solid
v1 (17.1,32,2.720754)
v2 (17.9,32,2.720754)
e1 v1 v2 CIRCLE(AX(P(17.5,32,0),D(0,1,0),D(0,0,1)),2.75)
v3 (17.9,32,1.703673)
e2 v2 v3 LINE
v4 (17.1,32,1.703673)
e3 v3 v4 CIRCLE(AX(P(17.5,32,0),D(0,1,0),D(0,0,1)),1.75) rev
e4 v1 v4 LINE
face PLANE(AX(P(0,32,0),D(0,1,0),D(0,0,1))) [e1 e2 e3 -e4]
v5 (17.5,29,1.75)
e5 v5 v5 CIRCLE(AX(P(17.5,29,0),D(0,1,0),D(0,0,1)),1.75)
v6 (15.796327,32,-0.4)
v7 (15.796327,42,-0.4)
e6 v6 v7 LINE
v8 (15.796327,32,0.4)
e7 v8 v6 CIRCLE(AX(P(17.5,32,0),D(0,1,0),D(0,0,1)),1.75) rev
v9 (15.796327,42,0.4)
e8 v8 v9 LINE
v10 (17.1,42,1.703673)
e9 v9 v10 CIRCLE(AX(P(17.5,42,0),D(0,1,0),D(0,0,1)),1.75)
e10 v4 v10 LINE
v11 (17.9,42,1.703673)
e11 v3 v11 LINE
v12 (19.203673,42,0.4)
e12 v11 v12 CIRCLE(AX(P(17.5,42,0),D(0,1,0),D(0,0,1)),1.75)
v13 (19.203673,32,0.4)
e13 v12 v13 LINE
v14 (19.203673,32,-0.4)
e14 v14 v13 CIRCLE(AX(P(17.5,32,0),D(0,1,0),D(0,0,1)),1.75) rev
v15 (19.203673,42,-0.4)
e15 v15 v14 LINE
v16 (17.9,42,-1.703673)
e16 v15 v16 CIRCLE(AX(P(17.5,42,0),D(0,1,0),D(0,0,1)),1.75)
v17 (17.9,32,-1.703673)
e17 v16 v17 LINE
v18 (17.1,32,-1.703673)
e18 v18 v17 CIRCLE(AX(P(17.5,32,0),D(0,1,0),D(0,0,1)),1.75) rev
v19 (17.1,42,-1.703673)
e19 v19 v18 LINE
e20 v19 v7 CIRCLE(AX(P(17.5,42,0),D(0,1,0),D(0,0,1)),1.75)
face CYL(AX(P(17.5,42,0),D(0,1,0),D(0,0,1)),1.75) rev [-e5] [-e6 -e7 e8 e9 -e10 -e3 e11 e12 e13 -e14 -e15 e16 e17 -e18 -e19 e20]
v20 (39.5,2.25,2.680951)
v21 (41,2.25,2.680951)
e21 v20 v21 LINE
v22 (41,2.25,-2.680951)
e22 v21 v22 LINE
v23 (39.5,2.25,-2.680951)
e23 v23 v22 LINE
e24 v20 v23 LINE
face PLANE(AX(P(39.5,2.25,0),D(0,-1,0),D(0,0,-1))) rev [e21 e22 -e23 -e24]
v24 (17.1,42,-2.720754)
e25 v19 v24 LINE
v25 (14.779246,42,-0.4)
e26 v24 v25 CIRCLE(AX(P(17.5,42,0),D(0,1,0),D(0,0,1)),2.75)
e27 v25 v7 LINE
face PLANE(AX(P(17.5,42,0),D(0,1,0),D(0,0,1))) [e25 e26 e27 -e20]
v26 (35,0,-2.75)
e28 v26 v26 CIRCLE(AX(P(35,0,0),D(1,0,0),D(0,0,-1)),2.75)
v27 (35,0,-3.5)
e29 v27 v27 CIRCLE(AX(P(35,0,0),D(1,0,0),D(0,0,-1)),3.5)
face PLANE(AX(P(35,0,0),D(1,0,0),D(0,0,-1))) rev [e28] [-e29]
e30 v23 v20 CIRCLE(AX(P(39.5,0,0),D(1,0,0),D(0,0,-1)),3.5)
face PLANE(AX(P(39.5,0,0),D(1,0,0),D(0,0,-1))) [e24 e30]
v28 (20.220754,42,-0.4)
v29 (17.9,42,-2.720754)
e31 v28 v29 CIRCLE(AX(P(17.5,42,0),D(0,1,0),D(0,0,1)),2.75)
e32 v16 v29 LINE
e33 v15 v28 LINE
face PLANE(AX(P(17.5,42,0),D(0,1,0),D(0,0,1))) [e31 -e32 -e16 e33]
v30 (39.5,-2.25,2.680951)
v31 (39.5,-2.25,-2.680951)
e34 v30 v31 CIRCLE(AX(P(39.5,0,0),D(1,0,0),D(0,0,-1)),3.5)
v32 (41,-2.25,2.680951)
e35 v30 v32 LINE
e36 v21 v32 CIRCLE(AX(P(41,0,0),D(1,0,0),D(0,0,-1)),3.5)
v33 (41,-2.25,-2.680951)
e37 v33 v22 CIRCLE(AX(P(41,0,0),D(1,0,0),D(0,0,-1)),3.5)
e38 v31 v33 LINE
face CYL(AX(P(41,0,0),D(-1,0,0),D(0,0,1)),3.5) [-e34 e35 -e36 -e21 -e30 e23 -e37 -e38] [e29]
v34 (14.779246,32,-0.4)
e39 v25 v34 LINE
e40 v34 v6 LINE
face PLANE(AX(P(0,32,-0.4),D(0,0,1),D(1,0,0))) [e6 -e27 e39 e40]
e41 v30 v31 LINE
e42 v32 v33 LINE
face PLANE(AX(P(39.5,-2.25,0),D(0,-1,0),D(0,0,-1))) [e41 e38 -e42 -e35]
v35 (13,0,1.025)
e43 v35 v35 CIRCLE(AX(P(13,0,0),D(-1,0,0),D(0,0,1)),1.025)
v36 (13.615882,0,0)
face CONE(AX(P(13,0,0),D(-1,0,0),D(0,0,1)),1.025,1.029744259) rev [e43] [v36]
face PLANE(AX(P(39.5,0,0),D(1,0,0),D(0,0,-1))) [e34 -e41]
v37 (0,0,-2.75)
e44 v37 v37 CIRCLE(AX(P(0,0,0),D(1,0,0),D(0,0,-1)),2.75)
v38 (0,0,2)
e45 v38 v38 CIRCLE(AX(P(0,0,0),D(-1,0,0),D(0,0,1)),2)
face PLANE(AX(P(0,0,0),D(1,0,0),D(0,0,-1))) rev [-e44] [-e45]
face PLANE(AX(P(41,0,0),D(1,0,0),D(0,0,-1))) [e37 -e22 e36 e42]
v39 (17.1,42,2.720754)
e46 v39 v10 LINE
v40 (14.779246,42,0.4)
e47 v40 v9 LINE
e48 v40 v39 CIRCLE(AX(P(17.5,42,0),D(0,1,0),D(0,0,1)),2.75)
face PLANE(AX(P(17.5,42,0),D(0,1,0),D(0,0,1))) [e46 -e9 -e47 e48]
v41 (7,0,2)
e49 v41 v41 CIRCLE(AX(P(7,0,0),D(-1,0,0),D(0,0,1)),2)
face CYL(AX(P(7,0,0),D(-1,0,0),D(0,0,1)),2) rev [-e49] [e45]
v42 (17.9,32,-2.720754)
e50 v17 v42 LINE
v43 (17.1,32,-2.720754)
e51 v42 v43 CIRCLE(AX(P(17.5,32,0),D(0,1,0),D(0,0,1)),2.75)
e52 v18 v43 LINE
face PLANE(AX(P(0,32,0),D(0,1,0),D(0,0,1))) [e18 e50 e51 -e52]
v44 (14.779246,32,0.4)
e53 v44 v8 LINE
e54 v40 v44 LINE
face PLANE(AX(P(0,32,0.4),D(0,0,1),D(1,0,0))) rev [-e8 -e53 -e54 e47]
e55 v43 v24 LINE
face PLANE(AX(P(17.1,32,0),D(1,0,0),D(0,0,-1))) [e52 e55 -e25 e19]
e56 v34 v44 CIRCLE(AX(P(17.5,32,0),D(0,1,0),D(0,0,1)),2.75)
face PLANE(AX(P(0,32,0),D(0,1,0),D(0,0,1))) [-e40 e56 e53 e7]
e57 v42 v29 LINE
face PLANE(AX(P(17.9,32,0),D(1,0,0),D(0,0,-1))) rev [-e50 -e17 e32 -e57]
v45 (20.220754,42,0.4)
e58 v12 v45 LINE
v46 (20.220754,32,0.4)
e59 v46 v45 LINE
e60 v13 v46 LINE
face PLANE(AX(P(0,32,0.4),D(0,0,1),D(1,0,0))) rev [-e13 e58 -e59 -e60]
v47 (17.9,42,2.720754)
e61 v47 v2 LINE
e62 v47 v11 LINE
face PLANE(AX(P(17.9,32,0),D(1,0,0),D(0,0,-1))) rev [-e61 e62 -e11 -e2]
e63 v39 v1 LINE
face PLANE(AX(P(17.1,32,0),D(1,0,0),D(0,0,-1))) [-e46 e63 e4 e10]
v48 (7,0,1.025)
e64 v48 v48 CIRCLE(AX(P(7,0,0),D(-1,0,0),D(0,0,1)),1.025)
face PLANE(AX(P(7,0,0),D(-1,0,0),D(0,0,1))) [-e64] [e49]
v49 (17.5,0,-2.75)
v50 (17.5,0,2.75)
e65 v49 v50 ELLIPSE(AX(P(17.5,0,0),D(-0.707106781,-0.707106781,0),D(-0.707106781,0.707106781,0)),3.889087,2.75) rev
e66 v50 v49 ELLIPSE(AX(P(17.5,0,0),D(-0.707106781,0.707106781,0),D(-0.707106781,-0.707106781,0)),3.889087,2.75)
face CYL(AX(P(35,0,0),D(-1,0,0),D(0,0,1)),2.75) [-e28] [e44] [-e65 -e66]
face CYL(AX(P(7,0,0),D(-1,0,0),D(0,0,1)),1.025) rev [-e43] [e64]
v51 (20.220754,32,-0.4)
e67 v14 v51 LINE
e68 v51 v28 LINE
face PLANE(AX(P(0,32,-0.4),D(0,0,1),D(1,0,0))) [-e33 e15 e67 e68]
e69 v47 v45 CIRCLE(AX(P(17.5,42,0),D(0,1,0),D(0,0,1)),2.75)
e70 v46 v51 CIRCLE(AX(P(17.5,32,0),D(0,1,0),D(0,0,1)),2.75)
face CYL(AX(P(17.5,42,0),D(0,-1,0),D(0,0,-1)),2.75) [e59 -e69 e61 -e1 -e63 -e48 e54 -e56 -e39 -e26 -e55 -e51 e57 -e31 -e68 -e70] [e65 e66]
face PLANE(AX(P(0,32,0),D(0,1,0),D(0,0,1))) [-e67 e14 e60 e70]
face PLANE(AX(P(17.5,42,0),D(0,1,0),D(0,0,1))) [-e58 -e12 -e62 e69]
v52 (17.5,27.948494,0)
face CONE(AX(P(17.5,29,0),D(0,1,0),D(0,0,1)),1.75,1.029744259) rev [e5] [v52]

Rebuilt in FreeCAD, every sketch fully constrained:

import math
import FreeCAD as App
import Part
import Sketcher
from FreeCAD import Vector
Q = App.Units.Quantity


def add_polygon(sketch, points):
    """Adds a closed chain of lines whose ends are joined by coincident constraints."""
    first, n = sketch.GeometryCount, len(points)
    for a, b in zip(points, points[1:] + points[:1]):
        sketch.addGeometry(Part.LineSegment(App.Vector(*a, 0), App.Vector(*b, 0)), False)
    for i in range(n):
        sketch.addConstraint(Sketcher.Constraint("Coincident", first + i, 2, first + (i + 1) % n, 1))

doc = App.newDocument("Part")
body = doc.addObject("PartDesign::Body", "Body")

# Sketch on YZ plane
sketch1 = body.newObject("Sketcher::SketchObject", "Sketch")
sketch1.AttachmentSupport = (doc.getObject("YZ_Plane"), [""])
sketch1.MapMode = "FlatFace"
sketch1.addGeometry(Part.Circle(Vector(0, 0, 0), Vector(0, 0, 1), 2.8), False)
sketch1.addConstraint([
    Sketcher.Constraint("Coincident", 0, 3, -1, 1),
    Sketcher.Constraint("Diameter", 0, Q("5.5 mm")),
])
pad1 = body.newObject("PartDesign::Pad", "Pad")
pad1.Profile = sketch1
pad1.Length = 35

# Sketch on XZ plane
sketch2 = body.newObject("Sketcher::SketchObject", "Sketch001")
sketch2.AttachmentSupport = (doc.getObject("XZ_Plane"), [""])
sketch2.MapMode = "FlatFace"
sketch2.addGeometry(Part.Circle(Vector(17.5, 0, 0), Vector(0, 0, 1), 2.8), False)
sketch2.addConstraint([
    Sketcher.Constraint("PointOnObject", 0, 3, -1),
    Sketcher.Constraint("Diameter", 0, Q("5.5 mm")),
    Sketcher.Constraint("DistanceX", -1, 1, 0, 3, Q("17.5 mm")),
])
pad2 = body.newObject("PartDesign::Pad", "Pad001")
pad2.Profile = sketch2
pad2.Length = 42
pad2.Reversed = True

# Sketch on XZ plane
sketch3 = body.newObject("Sketcher::SketchObject", "Sketch002")
sketch3.AttachmentSupport = (doc.getObject("XZ_Plane"), [""])
sketch3.MapMode = "FlatFace"
sketch3.AttachmentOffset = App.Placement(Vector(0, 0, -42), App.Rotation())
sketch3.addGeometry(Part.Circle(Vector(17.5, 0, 0), Vector(0, 0, 1), 1.8), False)
sketch3.addConstraint([
    Sketcher.Constraint("PointOnObject", 0, 3, -1),
    Sketcher.Constraint("Diameter", 0, Q("3.5 mm")),
    Sketcher.Constraint("DistanceX", -1, 1, 0, 3, Q("17.5 mm")),
])
doc.recompute()
hole = body.newObject("PartDesign::Hole", "Hole")
hole.Profile = sketch3
hole.ThreadType = "None"
hole.Diameter = 3.5
hole.DepthType = "Dimension"
hole.Depth = 13
hole.DrillPoint = "Angled"
hole.DrillPointAngle = 118
hole.Reversed = True

# Sketch on XZ plane
sketch4 = body.newObject("Sketcher::SketchObject", "Sketch003")
sketch4.AttachmentSupport = (doc.getObject("XZ_Plane"), [""])
sketch4.MapMode = "FlatFace"
sketch4.AttachmentOffset = App.Placement(Vector(0, 0, -42), App.Rotation())
add_polygon(sketch4, [(17.9, -0.4), (17.9, -4), (17.1, -4), (17.1, -0.4), (13.5, -0.4), (13.5, 0.4), (17.1, 0.4), (17.1, 4), (17.9, 4), (17.9, 0.4), (21.5, 0.4), (21.5, -0.4)])  # lines 0-11
sketch4.addConstraint([
    Sketcher.Constraint("Vertical", 0),
    Sketcher.Constraint("Horizontal", 1),
    Sketcher.Constraint("Vertical", 2),
    Sketcher.Constraint("Horizontal", 3),
    Sketcher.Constraint("Vertical", 4),
    Sketcher.Constraint("Horizontal", 5),
    Sketcher.Constraint("Vertical", 6),
    Sketcher.Constraint("Horizontal", 7),
    Sketcher.Constraint("Vertical", 8),
    Sketcher.Constraint("Horizontal", 9),
    Sketcher.Constraint("Vertical", 10),
    Sketcher.Constraint("Horizontal", 11),
    Sketcher.Constraint("Symmetric", 2, 2, 5, 2, -1),
    Sketcher.Constraint("Symmetric", 0, 2, 7, 2, -1),
    Sketcher.Constraint("Horizontal", 5, 2, 8, 2),
    Sketcher.Constraint("Horizontal", 3, 2, 10, 2),
    Sketcher.Constraint("Equal", 5, 9),
    Sketcher.Constraint("Equal", 11, 0),
    Sketcher.Constraint("Equal", 7, 4),
    Sketcher.Constraint("DistanceX", 1, 2, 1, 1, Q("0.8 mm")),
    Sketcher.Constraint("DistanceX", 3, 2, 3, 1, Q("3.6 mm")),
    Sketcher.Constraint("DistanceX", -1, 1, 0, 2, Q("17.9 mm")),
])
pocket1 = body.newObject("PartDesign::Pocket", "Pocket")
pocket1.Profile = sketch4
pocket1.Length = 10
pocket1.Reversed = True

# Sketch on YZ plane
sketch5 = body.newObject("Sketcher::SketchObject", "Sketch004")
sketch5.AttachmentSupport = (doc.getObject("YZ_Plane"), [""])
sketch5.MapMode = "FlatFace"
sketch5.AttachmentOffset = App.Placement(Vector(0, 0, 35), App.Rotation())
sketch5.addGeometry(Part.Circle(Vector(0, 0, 0), Vector(0, 0, 1), 3.5), False)
sketch5.addConstraint([
    Sketcher.Constraint("Coincident", 0, 3, -1, 1),
    Sketcher.Constraint("Diameter", 0, Q("7 mm")),
])
pad3 = body.newObject("PartDesign::Pad", "Pad002")
pad3.Profile = sketch5
pad3.Length = 6

# Sketch on YZ plane
sketch6 = body.newObject("Sketcher::SketchObject", "Sketch005")
sketch6.AttachmentSupport = (doc.getObject("YZ_Plane"), [""])
sketch6.MapMode = "FlatFace"
sketch6.AttachmentOffset = App.Placement(Vector(0, 0, 41), App.Rotation())
sketch6.addGeometry([
    Part.ArcOfCircle(Part.Circle(Vector(0, 0, 0), Vector(0, 0, 1), 3.5), math.radians(-50), math.radians(50)),
    Part.LineSegment(Vector(2.2, 2.7, 0), Vector(2.2, -2.7, 0)),
    Part.LineSegment(Vector(-2.2, -2.7, 0), Vector(-2.2, 2.7, 0)),
    Part.ArcOfCircle(Part.Circle(Vector(0, 0, 0), Vector(0, 0, 1), 3.5), math.radians(130), math.radians(230)),
], False)
sketch6.addConstraint([
    Sketcher.Constraint("Coincident", 0, 1, 1, 2),
    Sketcher.Constraint("Coincident", 1, 1, 0, 2),
    Sketcher.Constraint("Coincident", 2, 1, 3, 2),
    Sketcher.Constraint("Coincident", 3, 1, 2, 2),
    Sketcher.Constraint("Vertical", 1),
    Sketcher.Constraint("Vertical", 2),
    Sketcher.Constraint("Coincident", 0, 3, -1, 1),
    Sketcher.Constraint("Coincident", 3, 3, -1, 1),
    Sketcher.Constraint("Equal", 0, 3),
    Sketcher.Constraint("Horizontal", 0, 1, 2, 1),
    Sketcher.Constraint("Radius", 0, Q("3.5 mm")),
    Sketcher.Constraint("DistanceX", 2, 1, 0, 1, Q("4.5 mm")),
])
pocket2 = body.newObject("PartDesign::Pocket", "Pocket001")
pocket2.Profile = sketch6
pocket2.Length = 1.5

# Sketch on YZ plane
sketch7 = body.newObject("Sketcher::SketchObject", "Sketch006")
sketch7.AttachmentSupport = (doc.getObject("YZ_Plane"), [""])
sketch7.MapMode = "FlatFace"
sketch7.addGeometry(Part.Circle(Vector(0, 0, 0), Vector(0, 0, 1), 2), False)
sketch7.addConstraint([
    Sketcher.Constraint("Coincident", 0, 3, -1, 1),
    Sketcher.Constraint("Diameter", 0, Q("4 mm")),
])
pocket3 = body.newObject("PartDesign::Pocket", "Pocket002")
pocket3.Profile = sketch7
pocket3.Length = 7
pocket3.Reversed = True

# Sketch on YZ plane
sketch8 = body.newObject("Sketcher::SketchObject", "Sketch007")
sketch8.AttachmentSupport = (doc.getObject("YZ_Plane"), [""])
sketch8.MapMode = "FlatFace"
sketch8.AttachmentOffset = App.Placement(Vector(0, 0, 7), App.Rotation())
sketch8.addGeometry(Part.Circle(Vector(0, 0, 0), Vector(0, 0, 1), 1), False)
sketch8.addConstraint([
    Sketcher.Constraint("Coincident", 0, 3, -1, 1),
    Sketcher.Constraint("Diameter", 0, Q("2.05 mm")),
])
doc.recompute()
hole2 = body.newObject("PartDesign::Hole", "Hole001")
hole2.Profile = sketch8
hole2.ThreadType = "None"
hole2.Diameter = 2.05
hole2.DepthType = "Dimension"
hole2.Depth = 6
hole2.DrillPoint = "Angled"
hole2.DrillPointAngle = 118
hole2.Reversed = True

doc.recompute()
